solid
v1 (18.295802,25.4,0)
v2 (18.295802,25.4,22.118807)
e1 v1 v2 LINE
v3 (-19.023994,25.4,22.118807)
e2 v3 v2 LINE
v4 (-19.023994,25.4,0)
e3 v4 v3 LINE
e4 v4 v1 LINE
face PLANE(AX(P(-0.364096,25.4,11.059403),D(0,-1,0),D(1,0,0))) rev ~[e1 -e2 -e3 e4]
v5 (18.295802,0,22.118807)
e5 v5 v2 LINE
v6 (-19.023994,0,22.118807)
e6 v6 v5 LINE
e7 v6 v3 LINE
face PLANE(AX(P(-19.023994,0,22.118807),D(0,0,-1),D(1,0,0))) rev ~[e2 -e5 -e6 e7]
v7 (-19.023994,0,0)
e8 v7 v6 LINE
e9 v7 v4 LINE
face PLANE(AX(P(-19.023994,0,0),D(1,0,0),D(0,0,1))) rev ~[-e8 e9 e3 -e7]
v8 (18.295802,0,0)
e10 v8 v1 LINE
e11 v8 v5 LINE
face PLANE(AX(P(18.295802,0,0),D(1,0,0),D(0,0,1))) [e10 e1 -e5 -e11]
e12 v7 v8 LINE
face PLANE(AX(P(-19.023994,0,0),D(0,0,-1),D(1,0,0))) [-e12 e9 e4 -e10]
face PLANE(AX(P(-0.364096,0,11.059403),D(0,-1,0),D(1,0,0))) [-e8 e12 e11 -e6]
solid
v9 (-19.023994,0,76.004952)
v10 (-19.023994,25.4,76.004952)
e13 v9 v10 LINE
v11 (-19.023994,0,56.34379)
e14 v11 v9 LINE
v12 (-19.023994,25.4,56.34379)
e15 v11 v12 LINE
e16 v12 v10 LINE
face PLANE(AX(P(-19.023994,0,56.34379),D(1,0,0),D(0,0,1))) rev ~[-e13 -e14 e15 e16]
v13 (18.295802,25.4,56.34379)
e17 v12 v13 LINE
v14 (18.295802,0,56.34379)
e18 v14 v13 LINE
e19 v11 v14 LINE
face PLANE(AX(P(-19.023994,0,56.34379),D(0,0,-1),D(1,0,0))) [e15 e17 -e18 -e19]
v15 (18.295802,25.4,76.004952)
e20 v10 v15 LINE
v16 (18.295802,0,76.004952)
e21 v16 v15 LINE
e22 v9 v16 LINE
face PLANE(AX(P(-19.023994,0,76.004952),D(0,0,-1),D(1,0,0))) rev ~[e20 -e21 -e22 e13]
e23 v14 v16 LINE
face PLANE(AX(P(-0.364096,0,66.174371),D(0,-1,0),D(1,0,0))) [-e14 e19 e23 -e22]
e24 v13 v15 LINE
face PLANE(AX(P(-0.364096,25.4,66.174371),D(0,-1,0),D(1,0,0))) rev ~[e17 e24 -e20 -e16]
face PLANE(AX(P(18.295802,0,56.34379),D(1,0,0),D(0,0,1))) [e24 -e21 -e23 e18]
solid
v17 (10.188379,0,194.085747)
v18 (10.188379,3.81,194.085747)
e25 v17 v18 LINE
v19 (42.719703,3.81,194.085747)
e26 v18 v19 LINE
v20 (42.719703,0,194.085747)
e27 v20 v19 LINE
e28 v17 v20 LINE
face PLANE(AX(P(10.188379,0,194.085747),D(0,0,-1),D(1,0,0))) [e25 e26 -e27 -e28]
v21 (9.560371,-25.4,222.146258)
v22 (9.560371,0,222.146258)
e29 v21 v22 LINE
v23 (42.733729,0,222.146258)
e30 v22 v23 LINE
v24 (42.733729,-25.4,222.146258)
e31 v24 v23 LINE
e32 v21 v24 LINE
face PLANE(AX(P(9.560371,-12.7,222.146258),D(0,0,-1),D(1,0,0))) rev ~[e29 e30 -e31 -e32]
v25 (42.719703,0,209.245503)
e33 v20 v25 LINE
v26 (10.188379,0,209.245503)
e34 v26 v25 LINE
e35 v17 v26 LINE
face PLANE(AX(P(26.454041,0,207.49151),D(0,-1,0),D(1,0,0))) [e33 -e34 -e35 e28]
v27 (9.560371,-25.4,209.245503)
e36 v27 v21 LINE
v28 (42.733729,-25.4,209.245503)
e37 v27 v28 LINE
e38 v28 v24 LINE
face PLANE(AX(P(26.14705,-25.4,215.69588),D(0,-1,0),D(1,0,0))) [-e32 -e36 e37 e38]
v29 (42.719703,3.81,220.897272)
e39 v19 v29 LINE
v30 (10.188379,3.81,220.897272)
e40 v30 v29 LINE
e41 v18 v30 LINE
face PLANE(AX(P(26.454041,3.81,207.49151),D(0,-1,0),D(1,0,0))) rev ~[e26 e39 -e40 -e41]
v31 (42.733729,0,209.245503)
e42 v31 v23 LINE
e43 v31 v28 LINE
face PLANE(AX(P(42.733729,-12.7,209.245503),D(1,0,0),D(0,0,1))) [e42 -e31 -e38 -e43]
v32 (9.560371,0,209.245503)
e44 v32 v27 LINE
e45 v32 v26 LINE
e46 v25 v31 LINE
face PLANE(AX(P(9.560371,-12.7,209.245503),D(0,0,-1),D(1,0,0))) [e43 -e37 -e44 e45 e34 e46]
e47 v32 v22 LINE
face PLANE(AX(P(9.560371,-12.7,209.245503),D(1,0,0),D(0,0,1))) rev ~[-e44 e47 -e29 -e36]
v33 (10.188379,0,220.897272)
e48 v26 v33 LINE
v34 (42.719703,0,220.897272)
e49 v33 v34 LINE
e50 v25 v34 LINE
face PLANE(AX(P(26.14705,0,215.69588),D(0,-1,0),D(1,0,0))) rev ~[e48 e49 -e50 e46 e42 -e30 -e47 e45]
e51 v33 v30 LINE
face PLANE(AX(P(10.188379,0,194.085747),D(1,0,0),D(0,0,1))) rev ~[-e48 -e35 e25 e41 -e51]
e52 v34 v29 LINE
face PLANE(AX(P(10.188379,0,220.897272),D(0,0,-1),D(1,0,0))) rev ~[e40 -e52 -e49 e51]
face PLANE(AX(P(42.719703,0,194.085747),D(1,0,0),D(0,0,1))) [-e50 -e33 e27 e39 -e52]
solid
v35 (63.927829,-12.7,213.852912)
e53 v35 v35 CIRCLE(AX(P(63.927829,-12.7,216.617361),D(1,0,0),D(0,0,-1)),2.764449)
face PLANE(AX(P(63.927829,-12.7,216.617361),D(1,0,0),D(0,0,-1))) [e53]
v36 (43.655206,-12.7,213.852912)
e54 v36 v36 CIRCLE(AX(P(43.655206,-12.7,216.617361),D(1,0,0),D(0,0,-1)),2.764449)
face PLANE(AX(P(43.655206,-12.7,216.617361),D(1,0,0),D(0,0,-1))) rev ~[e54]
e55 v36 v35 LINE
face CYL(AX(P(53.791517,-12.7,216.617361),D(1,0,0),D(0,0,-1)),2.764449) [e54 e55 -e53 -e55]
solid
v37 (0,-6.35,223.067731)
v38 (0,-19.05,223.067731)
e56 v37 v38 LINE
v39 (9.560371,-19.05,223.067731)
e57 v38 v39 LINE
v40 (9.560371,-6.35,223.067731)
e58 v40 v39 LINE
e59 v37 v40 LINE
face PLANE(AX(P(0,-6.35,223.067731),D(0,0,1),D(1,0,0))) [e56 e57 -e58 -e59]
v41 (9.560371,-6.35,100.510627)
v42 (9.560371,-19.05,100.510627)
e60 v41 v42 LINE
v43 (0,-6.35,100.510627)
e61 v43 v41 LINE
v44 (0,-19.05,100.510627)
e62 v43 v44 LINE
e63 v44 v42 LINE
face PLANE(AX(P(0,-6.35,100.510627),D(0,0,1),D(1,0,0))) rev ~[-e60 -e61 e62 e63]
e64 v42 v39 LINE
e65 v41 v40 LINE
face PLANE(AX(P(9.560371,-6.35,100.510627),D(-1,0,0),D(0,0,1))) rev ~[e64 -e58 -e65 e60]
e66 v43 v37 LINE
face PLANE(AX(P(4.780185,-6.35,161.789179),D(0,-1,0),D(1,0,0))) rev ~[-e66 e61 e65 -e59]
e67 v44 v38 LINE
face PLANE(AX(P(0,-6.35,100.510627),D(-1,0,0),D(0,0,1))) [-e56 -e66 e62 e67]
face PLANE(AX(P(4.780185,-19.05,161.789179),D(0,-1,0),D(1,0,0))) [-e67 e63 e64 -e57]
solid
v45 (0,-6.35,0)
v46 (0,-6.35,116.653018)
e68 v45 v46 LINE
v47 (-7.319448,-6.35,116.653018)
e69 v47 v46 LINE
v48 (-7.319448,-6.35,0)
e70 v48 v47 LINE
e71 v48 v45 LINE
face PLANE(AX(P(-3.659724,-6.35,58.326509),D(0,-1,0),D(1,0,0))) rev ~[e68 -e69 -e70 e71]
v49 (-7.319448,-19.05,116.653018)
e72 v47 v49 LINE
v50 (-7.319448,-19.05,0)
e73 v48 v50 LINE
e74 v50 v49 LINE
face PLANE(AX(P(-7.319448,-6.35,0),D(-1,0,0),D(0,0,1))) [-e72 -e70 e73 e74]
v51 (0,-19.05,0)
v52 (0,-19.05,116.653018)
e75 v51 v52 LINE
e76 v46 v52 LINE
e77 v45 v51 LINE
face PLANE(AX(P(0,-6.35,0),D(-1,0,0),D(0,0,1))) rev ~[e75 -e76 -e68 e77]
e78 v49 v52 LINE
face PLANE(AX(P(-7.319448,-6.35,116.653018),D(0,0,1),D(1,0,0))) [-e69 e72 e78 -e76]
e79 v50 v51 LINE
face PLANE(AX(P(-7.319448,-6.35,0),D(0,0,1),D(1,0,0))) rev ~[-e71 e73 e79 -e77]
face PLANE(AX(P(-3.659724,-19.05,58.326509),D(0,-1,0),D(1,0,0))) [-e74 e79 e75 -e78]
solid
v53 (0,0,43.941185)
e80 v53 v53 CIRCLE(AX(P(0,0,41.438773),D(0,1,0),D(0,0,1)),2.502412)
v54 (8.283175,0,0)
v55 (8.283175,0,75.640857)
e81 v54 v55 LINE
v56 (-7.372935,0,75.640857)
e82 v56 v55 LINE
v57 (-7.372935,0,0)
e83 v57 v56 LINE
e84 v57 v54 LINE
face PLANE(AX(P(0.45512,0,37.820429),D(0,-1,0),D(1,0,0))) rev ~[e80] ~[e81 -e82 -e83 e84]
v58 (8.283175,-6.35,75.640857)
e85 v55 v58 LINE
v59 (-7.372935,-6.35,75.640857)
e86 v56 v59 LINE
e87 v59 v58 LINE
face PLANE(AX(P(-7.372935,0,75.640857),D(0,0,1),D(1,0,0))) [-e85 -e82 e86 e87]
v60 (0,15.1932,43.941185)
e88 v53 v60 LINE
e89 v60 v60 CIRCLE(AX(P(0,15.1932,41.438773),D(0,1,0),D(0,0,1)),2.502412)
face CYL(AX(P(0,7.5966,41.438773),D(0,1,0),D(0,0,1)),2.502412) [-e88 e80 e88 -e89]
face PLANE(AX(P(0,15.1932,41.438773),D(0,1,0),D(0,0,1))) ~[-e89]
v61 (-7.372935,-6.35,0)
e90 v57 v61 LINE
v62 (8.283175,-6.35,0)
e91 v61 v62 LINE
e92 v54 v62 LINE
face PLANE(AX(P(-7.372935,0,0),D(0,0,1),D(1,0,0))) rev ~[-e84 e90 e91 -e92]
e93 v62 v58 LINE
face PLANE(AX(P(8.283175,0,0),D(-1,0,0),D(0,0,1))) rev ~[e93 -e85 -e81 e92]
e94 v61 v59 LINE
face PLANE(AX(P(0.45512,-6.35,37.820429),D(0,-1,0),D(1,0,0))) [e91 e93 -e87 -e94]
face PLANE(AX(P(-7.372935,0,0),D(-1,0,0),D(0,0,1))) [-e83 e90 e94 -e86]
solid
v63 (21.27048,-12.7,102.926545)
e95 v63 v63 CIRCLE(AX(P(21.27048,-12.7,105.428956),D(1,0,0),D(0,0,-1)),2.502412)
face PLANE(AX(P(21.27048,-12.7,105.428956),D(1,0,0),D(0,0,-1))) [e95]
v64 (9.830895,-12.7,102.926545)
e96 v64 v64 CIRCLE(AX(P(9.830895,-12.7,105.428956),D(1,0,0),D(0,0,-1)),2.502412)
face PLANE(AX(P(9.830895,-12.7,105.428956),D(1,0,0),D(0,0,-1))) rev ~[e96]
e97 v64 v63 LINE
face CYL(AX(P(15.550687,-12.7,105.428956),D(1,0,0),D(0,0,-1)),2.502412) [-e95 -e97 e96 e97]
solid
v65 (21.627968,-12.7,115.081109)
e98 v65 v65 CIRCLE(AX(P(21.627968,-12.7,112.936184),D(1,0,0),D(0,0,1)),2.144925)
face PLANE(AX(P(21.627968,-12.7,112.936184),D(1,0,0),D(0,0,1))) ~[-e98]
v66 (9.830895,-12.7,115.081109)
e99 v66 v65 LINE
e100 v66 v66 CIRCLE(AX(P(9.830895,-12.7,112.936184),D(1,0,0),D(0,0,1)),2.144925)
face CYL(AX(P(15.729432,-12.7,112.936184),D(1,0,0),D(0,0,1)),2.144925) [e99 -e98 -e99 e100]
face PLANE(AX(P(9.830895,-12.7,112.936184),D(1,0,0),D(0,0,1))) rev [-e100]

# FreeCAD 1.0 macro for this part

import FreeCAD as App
import Part
import Sketcher
from FreeCAD import Vector
Q = App.Units.Quantity


def add_polygon(sketch, points):
    """Adds a closed chain of lines whose ends are joined by coincident constraints."""
    first, n = sketch.GeometryCount, len(points)
    for a, b in zip(points, points[1:] + points[:1]):
        sketch.addGeometry(Part.LineSegment(App.Vector(*a, 0), App.Vector(*b, 0)), False)
    for i in range(n):
        sketch.addConstraint(Sketcher.Constraint("Coincident", first + i, 2, first + (i + 1) % n, 1))

doc = App.newDocument("Part")
body = doc.addObject("PartDesign::Body", "Body")

sketch1 = body.newObject("Sketcher::SketchObject", "Sketch")
sketch1.AttachmentSupport = (doc.getObject("XZ_Plane"), [""])
sketch1.MapMode = "FlatFace"
add_polygon(sketch1, [(-19, 22), (-19, 0), (18, 0), (18, 22)])
sketch1.addConstraint(Sketcher.Constraint("Vertical", 0))
sketch1.addConstraint(Sketcher.Constraint("Horizontal", 1))
sketch1.addConstraint(Sketcher.Constraint("Vertical", 2))
sketch1.addConstraint(Sketcher.Constraint("Horizontal", 3))
sketch1.addConstraint(Sketcher.Constraint("PointOnObject", 0, 2, -1))
sketch1.addConstraint(Sketcher.Constraint("DistanceX", 1, 1, 1, 2, Q("37.319796 mm")))
sketch1.addConstraint(Sketcher.Constraint("DistanceY", 0, 2, 0, 1, Q("22.118807 mm")))
sketch1.addConstraint(Sketcher.Constraint("DistanceX", 0, 2, -1, 1, Q("19.023994 mm")))
pad1 = body.newObject("PartDesign::Pad", "Pad")
pad1.Profile = sketch1
pad1.Length = Q("1 in")
pad1.Reversed = True
body2 = doc.addObject("PartDesign::Body", "Body001")

sketch2 = body2.newObject("Sketcher::SketchObject", "Sketch001")
sketch2.AttachmentSupport = (doc.getObject("XZ_Plane001"), [""])
sketch2.MapMode = "FlatFace"
add_polygon(sketch2, [(-19, 76), (-19, 56), (18, 56), (18, 76)])
sketch2.addConstraint(Sketcher.Constraint("Vertical", 0))
sketch2.addConstraint(Sketcher.Constraint("Horizontal", 1))
sketch2.addConstraint(Sketcher.Constraint("Vertical", 2))
sketch2.addConstraint(Sketcher.Constraint("Horizontal", 3))
sketch2.addConstraint(Sketcher.Constraint("DistanceX", 1, 1, 1, 2, Q("37.319796 mm")))
sketch2.addConstraint(Sketcher.Constraint("DistanceY", 0, 2, 0, 1, Q("19.661162 mm")))
sketch2.addConstraint(Sketcher.Constraint("DistanceY", -1, 1, 0, 2, Q("56.34379 mm")))
sketch2.addConstraint(Sketcher.Constraint("DistanceX", 0, 2, -1, 1, Q("19.023994 mm")))
pad2 = body2.newObject("PartDesign::Pad", "Pad001")
pad2.Profile = sketch2
pad2.Length = Q("1 in")
pad2.Reversed = True
body3 = doc.addObject("PartDesign::Body", "Body002")

sketch3 = body3.newObject("Sketcher::SketchObject", "Sketch002")
sketch3.AttachmentSupport = (doc.getObject("XZ_Plane002"), [""])
sketch3.MapMode = "FlatFace"
add_polygon(sketch3, [(-7, 76), (-7, 0), (8, 0), (8, 76)])
sketch3.addConstraint(Sketcher.Constraint("Vertical", 0))
sketch3.addConstraint(Sketcher.Constraint("Horizontal", 1))
sketch3.addConstraint(Sketcher.Constraint("Vertical", 2))
sketch3.addConstraint(Sketcher.Constraint("Horizontal", 3))
sketch3.addConstraint(Sketcher.Constraint("PointOnObject", 0, 2, -1))
sketch3.addConstraint(Sketcher.Constraint("DistanceX", 1, 1, 1, 2, Q("15.65611 mm")))
sketch3.addConstraint(Sketcher.Constraint("DistanceY", 0, 2, 0, 1, Q("75.640857 mm")))
sketch3.addConstraint(Sketcher.Constraint("DistanceX", 0, 2, -1, 1, Q("7.372935 mm")))
pad3 = body3.newObject("PartDesign::Pad", "Pad002")
pad3.Profile = sketch3
pad3.Length = Q("0.25 in")

sketch4 = body3.newObject("Sketcher::SketchObject", "Sketch003")
sketch4.AttachmentSupport = (doc.getObject("YZ_Plane002"), [""])
sketch4.MapMode = "FlatFace"
add_polygon(sketch4, [(0, 43.9), (0, 41.4), (15.2, 41.4), (15.2, 43.9)])
sketch4.addGeometry(Part.LineSegment(Vector(0, 41.4, 0), Vector(15.2, 41.4, 0)), True)
sketch4.addConstraint(Sketcher.Constraint("Vertical", 0))
sketch4.addConstraint(Sketcher.Constraint("Horizontal", 1))
sketch4.addConstraint(Sketcher.Constraint("Vertical", 2))
sketch4.addConstraint(Sketcher.Constraint("Horizontal", 3))
sketch4.addConstraint(Sketcher.Constraint("Horizontal", 4))
sketch4.addConstraint(Sketcher.Constraint("Coincident", 4, 1, 0, 2))
sketch4.addConstraint(Sketcher.Constraint("PointOnObject", 0, 2, -2))
sketch4.addConstraint(Sketcher.Constraint("Vertical", 2, 2, 4, 2))
sketch4.addConstraint(Sketcher.Constraint("DistanceX", 1, 1, 1, 2, Q("15.1932 mm")))
sketch4.addConstraint(Sketcher.Constraint("DistanceY", 0, 2, 0, 1, Q("2.502412 mm")))
sketch4.addConstraint(Sketcher.Constraint("DistanceY", -1, 1, 0, 2, Q("41.438773 mm")))
revolution = body3.newObject("PartDesign::Revolution", "Revolution")
revolution.Profile = sketch4
revolution.ReferenceAxis = (sketch4, ["Axis0"])
revolution.Angle = 360
body4 = doc.addObject("PartDesign::Body", "Body003")

sketch5 = body4.newObject("Sketcher::SketchObject", "Sketch004")
sketch5.AttachmentSupport = (doc.getObject("XZ_Plane003"), [""])
sketch5.MapMode = "FlatFace"
add_polygon(sketch5, [(43.7, 216.6), (43.7, 213.9), (63.9, 213.9), (63.9, 216.6)])
sketch5.addGeometry(Part.LineSegment(Vector(43.7, 216.6, 0), Vector(63.9, 216.6, 0)), True)
sketch5.addConstraint(Sketcher.Constraint("Vertical", 0))
sketch5.addConstraint(Sketcher.Constraint("Horizontal", 1))
sketch5.addConstraint(Sketcher.Constraint("Vertical", 2))
sketch5.addConstraint(Sketcher.Constraint("Horizontal", 3))
sketch5.addConstraint(Sketcher.Constraint("Horizontal", 4))
sketch5.addConstraint(Sketcher.Constraint("Coincident", 4, 1, 3, 2))
sketch5.addConstraint(Sketcher.Constraint("Vertical", 1, 2, 4, 2))
sketch5.addConstraint(Sketcher.Constraint("DistanceY", 0, 2, 0, 1, Q("2.764449 mm")))
sketch5.addConstraint(Sketcher.Constraint("DistanceX", 1, 1, 1, 2, Q("20.272624 mm")))
sketch5.addConstraint(Sketcher.Constraint("DistanceX", -1, 1, 1, 2, Q("63.927829 mm")))
sketch5.addConstraint(Sketcher.Constraint("DistanceY", -1, 1, 2, 2, Q("216.617361 mm")))
revolution2 = body4.newObject("PartDesign::Revolution", "Revolution001")
revolution2.Profile = sketch5
revolution2.ReferenceAxis = (sketch5, ["Axis0"])
revolution2.Angle = 360
body5 = doc.addObject("PartDesign::Body", "Body004")

sketch6 = body5.newObject("Sketcher::SketchObject", "Sketch005")
sketch6.AttachmentSupport = (doc.getObject("XZ_Plane004"), [""])
sketch6.MapMode = "FlatFace"
add_polygon(sketch6, [(10, 222), (10, 209), (43, 209), (43, 222)])
sketch6.addConstraint(Sketcher.Constraint("Vertical", 0))
sketch6.addConstraint(Sketcher.Constraint("Horizontal", 1))
sketch6.addConstraint(Sketcher.Constraint("Vertical", 2))
sketch6.addConstraint(Sketcher.Constraint("Horizontal", 3))
sketch6.addConstraint(Sketcher.Constraint("DistanceX", 1, 1, 1, 2, Q("33.173358 mm")))
sketch6.addConstraint(Sketcher.Constraint("DistanceY", 0, 2, 0, 1, Q("12.900755 mm")))
sketch6.addConstraint(Sketcher.Constraint("DistanceX", -1, 1, 0, 2, Q("9.560371 mm")))
sketch6.addConstraint(Sketcher.Constraint("DistanceY", -1, 1, 0, 2, Q("209.245503 mm")))
pad4 = body5.newObject("PartDesign::Pad", "Pad003")
pad4.Profile = sketch6
pad4.Length = Q("1 in")
pad4.Midplane = True
body6 = doc.addObject("PartDesign::Body", "Body005")

sketch7 = body6.newObject("Sketcher::SketchObject", "Sketch006")
sketch7.AttachmentSupport = (doc.getObject("XZ_Plane005"), [""])
sketch7.MapMode = "FlatFace"
add_polygon(sketch7, [(-7, 117), (-7, 0), (0, 0), (0, 117)])
sketch7.addConstraint(Sketcher.Constraint("Vertical", 0))
sketch7.addConstraint(Sketcher.Constraint("Horizontal", 1))
sketch7.addConstraint(Sketcher.Constraint("Vertical", 2))
sketch7.addConstraint(Sketcher.Constraint("Horizontal", 3))
sketch7.addConstraint(Sketcher.Constraint("Coincident", 1, 2, -1, 1))
sketch7.addConstraint(Sketcher.Constraint("DistanceX", 1, 1, 1, 2, Q("7.319448 mm")))
sketch7.addConstraint(Sketcher.Constraint("DistanceY", 0, 2, 0, 1, Q("116.653018 mm")))
pad5 = body6.newObject("PartDesign::Pad", "Pad004")
pad5.Profile = sketch7
pad5.Length = Q("0.5 in")
body7 = doc.addObject("PartDesign::Body", "Body006")

sketch8 = body7.newObject("Sketcher::SketchObject", "Sketch007")
sketch8.AttachmentSupport = (doc.getObject("XZ_Plane006"), [""])
sketch8.MapMode = "FlatFace"
add_polygon(sketch8, [(0, 223), (0, 101), (10, 101), (10, 223)])
sketch8.addConstraint(Sketcher.Constraint("Vertical", 0))
sketch8.addConstraint(Sketcher.Constraint("Horizontal", 1))
sketch8.addConstraint(Sketcher.Constraint("Vertical", 2))
sketch8.addConstraint(Sketcher.Constraint("Horizontal", 3))
sketch8.addConstraint(Sketcher.Constraint("PointOnObject", 0, 2, -2))
sketch8.addConstraint(Sketcher.Constraint("DistanceX", 1, 1, 1, 2, Q("9.560371 mm")))
sketch8.addConstraint(Sketcher.Constraint("DistanceY", 0, 2, 0, 1, Q("122.557104 mm")))
sketch8.addConstraint(Sketcher.Constraint("DistanceY", -1, 1, 2, 2, Q("223.067731 mm")))
pad6 = body7.newObject("PartDesign::Pad", "Pad005")
pad6.Profile = sketch8
pad6.Length = Q("0.5 in")
body8 = doc.addObject("PartDesign::Body", "Body007")

sketch9 = body8.newObject("Sketcher::SketchObject", "Sketch008")
sketch9.AttachmentSupport = (doc.getObject("XZ_Plane007"), [""])
sketch9.MapMode = "FlatFace"
add_polygon(sketch9, [(9.8, 115.1), (9.8, 112.9), (21.6, 112.9), (21.6, 115.1)])
sketch9.addGeometry(Part.LineSegment(Vector(9.8, 112.9, 0), Vector(21.6, 112.9, 0)), True)
sketch9.addConstraint(Sketcher.Constraint("Vertical", 0))
sketch9.addConstraint(Sketcher.Constraint("Horizontal", 1))
sketch9.addConstraint(Sketcher.Constraint("Vertical", 2))
sketch9.addConstraint(Sketcher.Constraint("Horizontal", 3))
sketch9.addConstraint(Sketcher.Constraint("Horizontal", 4))
sketch9.addConstraint(Sketcher.Constraint("Coincident", 4, 1, 0, 2))
sketch9.addConstraint(Sketcher.Constraint("Vertical", 2, 2, 4, 2))
sketch9.addConstraint(Sketcher.Constraint("DistanceX", 1, 1, 1, 2, Q("11.797073 mm")))
sketch9.addConstraint(Sketcher.Constraint("DistanceY", 0, 2, 0, 1, Q("2.144925 mm")))
sketch9.addConstraint(Sketcher.Constraint("DistanceX", -1, 1, 1, 2, Q("21.627968 mm")))
sketch9.addConstraint(Sketcher.Constraint("DistanceY", -1, 1, 2, 2, Q("115.081109 mm")))
revolution3 = body8.newObject("PartDesign::Revolution", "Revolution002")
revolution3.Profile = sketch9
revolution3.ReferenceAxis = (sketch9, ["Axis0"])
revolution3.Angle = 360
body9 = doc.addObject("PartDesign::Body", "Body008")

sketch10 = body9.newObject("Sketcher::SketchObject", "Sketch009")
sketch10.AttachmentSupport = (doc.getObject("XZ_Plane008"), [""])
sketch10.MapMode = "FlatFace"
add_polygon(sketch10, [(9.8, 105.4), (9.8, 102.9), (21.3, 102.9), (21.3, 105.4)])
sketch10.addGeometry(Part.LineSegment(Vector(9.8, 105.4, 0), Vector(21.3, 105.4, 0)), True)
sketch10.addConstraint(Sketcher.Constraint("Vertical", 0))
sketch10.addConstraint(Sketcher.Constraint("Horizontal", 1))
sketch10.addConstraint(Sketcher.Constraint("Vertical", 2))
sketch10.addConstraint(Sketcher.Constraint("Horizontal", 3))
sketch10.addConstraint(Sketcher.Constraint("Horizontal", 4))
sketch10.addConstraint(Sketcher.Constraint("Coincident", 4, 1, 3, 2))
sketch10.addConstraint(Sketcher.Constraint("Vertical", 1, 2, 4, 2))
sketch10.addConstraint(Sketcher.Constraint("DistanceY", 0, 2, 0, 1, Q("2.502412 mm")))
sketch10.addConstraint(Sketcher.Constraint("DistanceX", 1, 1, 1, 2, Q("11.439585 mm")))
sketch10.addConstraint(Sketcher.Constraint("DistanceX", -1, 1, 1, 2, Q("21.27048 mm")))
sketch10.addConstraint(Sketcher.Constraint("DistanceY", -1, 1, 0, 2, Q("102.926545 mm")))
revolution4 = body9.newObject("PartDesign::Revolution", "Revolution003")
revolution4.Profile = sketch10
revolution4.ReferenceAxis = (sketch10, ["Axis0"])
revolution4.Angle = 360
body10 = doc.addObject("PartDesign::Body", "Body009")
doc.recompute()

body7.Placement = App.Placement(Vector(0, -6.35, 0), App.Rotation(Vector(0, 0, 1), 0))
boolean = body10.newObject("PartDesign::Boolean", "Boolean")
boolean.Type = "Fuse"
boolean.addObjects([body7])
body11 = doc.addObject("PartDesign::Body", "Body010")
doc.recompute()

body6.Placement = App.Placement(Vector(0, -6.35, 0), App.Rotation(Vector(0, 0, 1), 0))
boolean2 = body11.newObject("PartDesign::Boolean", "Boolean001")
boolean2.Type = "Fuse"
boolean2.addObjects([body6])
body12 = doc.addObject("PartDesign::Body", "Body011")
doc.recompute()

body9.Placement = App.Placement(Vector(0, -6.35, 0), App.Rotation(Vector(0, 0, 1), 0))
boolean3 = body12.newObject("PartDesign::Boolean", "Boolean002")
boolean3.Type = "Fuse"
boolean3.addObjects([body9])
body13 = doc.addObject("PartDesign::Body", "Body012")
doc.recompute()

body8.Placement = App.Placement(Vector(0, -6.35, 0), App.Rotation(Vector(0, 0, 1), 0))
boolean4 = body13.newObject("PartDesign::Boolean", "Boolean003")
boolean4.Type = "Fuse"
boolean4.addObjects([body8])
body14 = doc.addObject("PartDesign::Body", "Body013")
doc.recompute()

body5.Placement = App.Placement(Vector(0, -6.35, 0), App.Rotation(Vector(0, 0, 1), 0))
boolean5 = body14.newObject("PartDesign::Boolean", "Boolean004")
boolean5.Type = "Fuse"
boolean5.addObjects([body5])
body15 = doc.addObject("PartDesign::Body", "Body014")
doc.recompute()

body4.Placement = App.Placement(Vector(0, -6.35, 0), App.Rotation(Vector(0, 0, 1), 0))
boolean6 = body15.newObject("PartDesign::Boolean", "Boolean005")
boolean6.Type = "Fuse"
boolean6.addObjects([body4])
body16 = doc.addObject("PartDesign::Body", "Body015")
doc.recompute()

body13.Placement = App.Placement(Vector(0, -6.35, 0), App.Rotation(Vector(0, 0, 1), 0))
boolean7 = body16.newObject("PartDesign::Boolean", "Boolean006")
boolean7.Type = "Fuse"
boolean7.addObjects([body13])
body17 = doc.addObject("PartDesign::Body", "Body016")
doc.recompute()

body12.Placement = App.Placement(Vector(0, -6.35, 0), App.Rotation(Vector(0, 0, 1), 0))
boolean8 = body17.newObject("PartDesign::Boolean", "Boolean007")
boolean8.Type = "Fuse"
boolean8.addObjects([body12])
body18 = doc.addObject("PartDesign::Body", "Body017")
doc.recompute()

body14.Placement = App.Placement(Vector(0, -6.35, 0), App.Rotation(Vector(0, 0, 1), 0))
boolean9 = body18.newObject("PartDesign::Boolean", "Boolean008")
boolean9.Type = "Fuse"
boolean9.addObjects([body14])

sketch11 = body18.newObject("Sketcher::SketchObject", "Sketch010")
sketch11.AttachmentSupport = (doc.getObject("XZ_Plane017"), [""])
sketch11.MapMode = "FlatFace"
add_polygon(sketch11, [(10, 221), (10, 194), (43, 194), (43, 221)])
sketch11.addConstraint(Sketcher.Constraint("Vertical", 0))
sketch11.addConstraint(Sketcher.Constraint("Horizontal", 1))
sketch11.addConstraint(Sketcher.Constraint("Vertical", 2))
sketch11.addConstraint(Sketcher.Constraint("Horizontal", 3))
sketch11.addConstraint(Sketcher.Constraint("DistanceX", 1, 1, 1, 2, Q("32.531324 mm")))
sketch11.addConstraint(Sketcher.Constraint("DistanceY", 0, 2, 0, 1, Q("26.811525 mm")))
sketch11.addConstraint(Sketcher.Constraint("DistanceX", -1, 1, 0, 2, Q("10.188379 mm")))
sketch11.addConstraint(Sketcher.Constraint("DistanceY", -1, 1, 0, 2, Q("194.085747 mm")))
pad7 = body18.newObject("PartDesign::Pad", "Pad006")
pad7.Profile = sketch11
pad7.Length = Q("0.15 in")
pad7.Reversed = True
body19 = doc.addObject("PartDesign::Body", "Body018")
doc.recompute()

body15.Placement = App.Placement(Vector(0, -6.35, 0), App.Rotation(Vector(0, 0, 1), 0))
boolean10 = body19.newObject("PartDesign::Boolean", "Boolean009")
boolean10.Type = "Fuse"
boolean10.addObjects([body15])

doc.recompute()
